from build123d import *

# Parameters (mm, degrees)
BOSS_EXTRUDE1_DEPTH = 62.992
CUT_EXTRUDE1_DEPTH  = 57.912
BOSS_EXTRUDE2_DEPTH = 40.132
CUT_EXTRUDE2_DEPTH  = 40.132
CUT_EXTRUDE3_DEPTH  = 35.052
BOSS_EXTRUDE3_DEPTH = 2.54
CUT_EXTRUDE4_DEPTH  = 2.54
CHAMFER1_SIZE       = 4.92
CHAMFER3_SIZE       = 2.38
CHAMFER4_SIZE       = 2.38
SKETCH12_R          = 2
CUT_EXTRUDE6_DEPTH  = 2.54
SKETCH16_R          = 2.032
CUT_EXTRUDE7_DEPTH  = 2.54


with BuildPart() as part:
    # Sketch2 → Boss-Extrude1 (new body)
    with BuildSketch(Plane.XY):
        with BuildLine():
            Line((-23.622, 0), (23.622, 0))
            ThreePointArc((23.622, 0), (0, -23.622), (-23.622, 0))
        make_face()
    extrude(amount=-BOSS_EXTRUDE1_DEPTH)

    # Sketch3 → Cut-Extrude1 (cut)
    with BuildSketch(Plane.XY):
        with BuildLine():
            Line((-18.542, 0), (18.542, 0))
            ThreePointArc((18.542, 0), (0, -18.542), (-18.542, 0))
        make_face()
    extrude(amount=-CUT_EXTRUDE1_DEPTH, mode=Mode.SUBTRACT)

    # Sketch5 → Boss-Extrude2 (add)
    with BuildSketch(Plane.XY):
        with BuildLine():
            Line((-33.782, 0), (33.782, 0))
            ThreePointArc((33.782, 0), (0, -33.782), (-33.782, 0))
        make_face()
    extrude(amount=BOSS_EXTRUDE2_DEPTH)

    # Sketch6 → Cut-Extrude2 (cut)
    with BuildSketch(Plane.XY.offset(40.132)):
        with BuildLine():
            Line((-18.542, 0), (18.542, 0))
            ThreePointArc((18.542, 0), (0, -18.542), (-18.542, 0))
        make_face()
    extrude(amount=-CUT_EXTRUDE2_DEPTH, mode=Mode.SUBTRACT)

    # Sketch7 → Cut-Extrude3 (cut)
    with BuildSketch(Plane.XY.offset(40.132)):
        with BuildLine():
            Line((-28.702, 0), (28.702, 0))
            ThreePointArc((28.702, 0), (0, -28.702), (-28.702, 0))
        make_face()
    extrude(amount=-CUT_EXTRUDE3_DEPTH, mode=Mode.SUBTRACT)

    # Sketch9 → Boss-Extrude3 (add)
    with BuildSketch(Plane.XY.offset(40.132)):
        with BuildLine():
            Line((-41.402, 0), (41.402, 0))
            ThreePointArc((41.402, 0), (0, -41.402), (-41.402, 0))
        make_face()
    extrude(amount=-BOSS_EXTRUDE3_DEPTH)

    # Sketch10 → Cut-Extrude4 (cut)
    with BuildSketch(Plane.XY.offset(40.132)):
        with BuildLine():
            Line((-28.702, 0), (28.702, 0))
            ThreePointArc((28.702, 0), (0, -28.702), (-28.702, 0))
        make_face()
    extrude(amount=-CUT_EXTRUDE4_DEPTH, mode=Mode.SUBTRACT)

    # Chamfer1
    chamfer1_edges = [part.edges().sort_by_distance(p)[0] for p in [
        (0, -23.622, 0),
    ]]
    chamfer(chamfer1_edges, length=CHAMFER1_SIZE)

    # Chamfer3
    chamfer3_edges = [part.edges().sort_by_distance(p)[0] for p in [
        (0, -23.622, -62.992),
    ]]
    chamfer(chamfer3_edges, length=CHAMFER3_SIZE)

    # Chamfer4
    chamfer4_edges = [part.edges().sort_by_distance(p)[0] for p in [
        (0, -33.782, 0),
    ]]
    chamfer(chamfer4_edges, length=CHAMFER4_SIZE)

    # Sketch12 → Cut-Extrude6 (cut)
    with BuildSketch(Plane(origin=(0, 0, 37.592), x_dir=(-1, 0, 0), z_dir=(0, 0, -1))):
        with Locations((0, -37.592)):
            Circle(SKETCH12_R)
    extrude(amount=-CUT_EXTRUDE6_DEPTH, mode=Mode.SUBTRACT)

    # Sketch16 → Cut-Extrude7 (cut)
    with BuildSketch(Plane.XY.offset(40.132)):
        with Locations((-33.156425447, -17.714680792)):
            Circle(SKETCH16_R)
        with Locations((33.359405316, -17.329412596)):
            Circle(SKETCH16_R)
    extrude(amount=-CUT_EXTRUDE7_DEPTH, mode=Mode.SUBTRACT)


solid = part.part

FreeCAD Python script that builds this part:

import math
import FreeCAD as App
import Part
import Sketcher
from FreeCAD import Vector
Q = App.Units.Quantity


def edges_at(feature, points):
    """Names of the edges that pass closest to the given points."""
    edges = feature.Shape.Edges
    near = lambda p: min(range(len(edges)), key=lambda i: edges[i].distToShape(Part.Vertex(*p))[0])
    return sorted({f"Edge{near(p) + 1}" for p in points})

doc = App.newDocument("Part")
params = doc.addObject("Spreadsheet::Sheet", "Params")
for row, (alias, value) in enumerate([
    ("sketch1_radius", "0.93 in"),
    ("pad1_length", "2.48 in"),
    ("sketch2_radius", "0.73 in"),
    ("pocket1_length", "2.28 in"),
    ("sketch3_radius", "1.33 in"),
    ("pad2_length", "1.58 in"),
    ("sketch4_radius", "0.73 in"),
    ("pocket2_length", "1.58 in"),
    ("sketch5_radius", "1.13 in"),
    ("pocket3_length", "1.38 in"),
    ("sketch6_radius", "1.63 in"),
    ("pad3_length", "0.1 in"),
    ("sketch7_radius", "1.13 in"),
    ("pocket4_length", "0.1 in"),
    ("chamfer_size", "4.92 mm"),
    ("chamfer2_size", "2.38 mm"),
    ("chamfer3_size", "2.38 mm"),
    ("pocket5_length", "0.1 in"),
    ("sketch9_diameter", "0.16 in"),
    ("pocket6_length", "0.1 in"),
], start=1):
    params.set(f"A{row}", alias)
    params.set(f"B{row}", "=" + value)
    params.setAlias(f"B{row}", alias)

body = doc.addObject("PartDesign::Body", "Body")

# Sketch on XY plane
sketch1 = body.newObject("Sketcher::SketchObject", "Sketch")
sketch1.AttachmentSupport = (doc.getObject("XY_Plane"), [""])
sketch1.MapMode = "FlatFace"
sketch1.addGeometry([
    Part.LineSegment(Vector(24, 0, 0), Vector(-24, 0, 0)),
    Part.ArcOfCircle(Part.Circle(Vector(0, 0, 0), Vector(0, 0, 1), 24), math.radians(180), math.radians(360)),
], False)
sketch1.addConstraint([
    Sketcher.Constraint("Coincident", 0, 1, 1, 2),
    Sketcher.Constraint("Coincident", 1, 1, 0, 2),
    Sketcher.Constraint("Horizontal", 0),
    Sketcher.Constraint("Coincident", 1, 3, -1, 1),
    Sketcher.Constraint("PointOnObject", 0, 1, -1),
    Sketcher.Constraint("Radius", 1, Q("0.93 in")),
])
sketch1.setExpression("Constraints[5]", "Params.sketch1_radius")
pad1 = body.newObject("PartDesign::Pad", "Pad")
pad1.Profile = sketch1
pad1.setExpression("Length", "Params.pad1_length")
pad1.Reversed = True

# Sketch on XY plane
sketch2 = body.newObject("Sketcher::SketchObject", "Sketch001")
sketch2.AttachmentSupport = (doc.getObject("XY_Plane"), [""])
sketch2.MapMode = "FlatFace"
sketch2.addGeometry([
    Part.LineSegment(Vector(19, 0, 0), Vector(-19, 0, 0)),
    Part.ArcOfCircle(Part.Circle(Vector(0, 0, 0), Vector(0, 0, 1), 19), math.radians(180), math.radians(360)),
], False)
sketch2.addConstraint([
    Sketcher.Constraint("Coincident", 0, 1, 1, 2),
    Sketcher.Constraint("Coincident", 1, 1, 0, 2),
    Sketcher.Constraint("Horizontal", 0),
    Sketcher.Constraint("Coincident", 1, 3, -1, 1),
    Sketcher.Constraint("PointOnObject", 0, 1, -1),
    Sketcher.Constraint("Radius", 1, Q("0.73 in")),
])
sketch2.setExpression("Constraints[5]", "Params.sketch2_radius")
pocket1 = body.newObject("PartDesign::Pocket", "Pocket")
pocket1.Profile = sketch2
pocket1.setExpression("Length", "Params.pocket1_length")

# Sketch on XY plane
sketch3 = body.newObject("Sketcher::SketchObject", "Sketch002")
sketch3.AttachmentSupport = (doc.getObject("XY_Plane"), [""])
sketch3.MapMode = "FlatFace"
sketch3.addGeometry([
    Part.LineSegment(Vector(34, 0, 0), Vector(-34, 0, 0)),
    Part.ArcOfCircle(Part.Circle(Vector(0, 0, 0), Vector(0, 0, 1), 34), math.radians(180), math.radians(360)),
], False)
sketch3.addConstraint([
    Sketcher.Constraint("Coincident", 0, 1, 1, 2),
    Sketcher.Constraint("Coincident", 1, 1, 0, 2),
    Sketcher.Constraint("Horizontal", 0),
    Sketcher.Constraint("Coincident", 1, 3, -1, 1),
    Sketcher.Constraint("PointOnObject", 0, 1, -1),
    Sketcher.Constraint("Radius", 1, Q("1.33 in")),
])
sketch3.setExpression("Constraints[5]", "Params.sketch3_radius")
pad2 = body.newObject("PartDesign::Pad", "Pad001")
pad2.Profile = sketch3
pad2.setExpression("Length", "Params.pad2_length")

# Sketch on XY plane
sketch4 = body.newObject("Sketcher::SketchObject", "Sketch003")
sketch4.AttachmentSupport = (doc.getObject("XY_Plane"), [""])
sketch4.MapMode = "FlatFace"
sketch4.AttachmentOffset = App.Placement(Vector(0, 0, 1.58 * 25.4), App.Rotation())
sketch4.addGeometry([
    Part.LineSegment(Vector(19, 0, 0), Vector(-19, 0, 0)),
    Part.ArcOfCircle(Part.Circle(Vector(0, 0, 0), Vector(0, 0, 1), 19), math.radians(180), math.radians(360)),
], False)
sketch4.addConstraint([
    Sketcher.Constraint("Coincident", 0, 1, 1, 2),
    Sketcher.Constraint("Coincident", 1, 1, 0, 2),
    Sketcher.Constraint("Horizontal", 0),
    Sketcher.Constraint("Coincident", 1, 3, -1, 1),
    Sketcher.Constraint("PointOnObject", 0, 1, -1),
    Sketcher.Constraint("Radius", 1, Q("0.73 in")),
])
sketch4.setExpression("Constraints[5]", "Params.sketch4_radius")
pocket2 = body.newObject("PartDesign::Pocket", "Pocket001")
pocket2.Profile = sketch4
pocket2.setExpression("Length", "Params.pocket2_length")

# Sketch on XY plane
sketch5 = body.newObject("Sketcher::SketchObject", "Sketch004")
sketch5.AttachmentSupport = (doc.getObject("XY_Plane"), [""])
sketch5.MapMode = "FlatFace"
sketch5.AttachmentOffset = App.Placement(Vector(0, 0, 1.58 * 25.4), App.Rotation())
sketch5.addGeometry([
    Part.LineSegment(Vector(29, 0, 0), Vector(-29, 0, 0)),
    Part.ArcOfCircle(Part.Circle(Vector(0, 0, 0), Vector(0, 0, 1), 29), math.radians(180), math.radians(360)),
], False)
sketch5.addConstraint([
    Sketcher.Constraint("Coincident", 0, 1, 1, 2),
    Sketcher.Constraint("Coincident", 1, 1, 0, 2),
    Sketcher.Constraint("Horizontal", 0),
    Sketcher.Constraint("Coincident", 1, 3, -1, 1),
    Sketcher.Constraint("PointOnObject", 0, 1, -1),
    Sketcher.Constraint("Radius", 1, Q("1.13 in")),
])
sketch5.setExpression("Constraints[5]", "Params.sketch5_radius")
pocket3 = body.newObject("PartDesign::Pocket", "Pocket002")
pocket3.Profile = sketch5
pocket3.setExpression("Length", "Params.pocket3_length")

# Sketch on XY plane
sketch6 = body.newObject("Sketcher::SketchObject", "Sketch005")
sketch6.AttachmentSupport = (doc.getObject("XY_Plane"), [""])
sketch6.MapMode = "FlatFace"
sketch6.AttachmentOffset = App.Placement(Vector(0, 0, 1.58 * 25.4), App.Rotation())
sketch6.addGeometry([
    Part.LineSegment(Vector(41, 0, 0), Vector(-41, 0, 0)),
    Part.ArcOfCircle(Part.Circle(Vector(0, 0, 0), Vector(0, 0, 1), 41), math.radians(180), math.radians(360)),
], False)
sketch6.addConstraint([
    Sketcher.Constraint("Coincident", 0, 1, 1, 2),
    Sketcher.Constraint("Coincident", 1, 1, 0, 2),
    Sketcher.Constraint("Horizontal", 0),
    Sketcher.Constraint("Coincident", 1, 3, -1, 1),
    Sketcher.Constraint("PointOnObject", 0, 1, -1),
    Sketcher.Constraint("Radius", 1, Q("1.63 in")),
])
sketch6.setExpression("Constraints[5]", "Params.sketch6_radius")
pad3 = body.newObject("PartDesign::Pad", "Pad002")
pad3.Profile = sketch6
pad3.setExpression("Length", "Params.pad3_length")
pad3.Reversed = True

# Sketch on XY plane
sketch7 = body.newObject("Sketcher::SketchObject", "Sketch006")
sketch7.AttachmentSupport = (doc.getObject("XY_Plane"), [""])
sketch7.MapMode = "FlatFace"
sketch7.AttachmentOffset = App.Placement(Vector(0, 0, 1.58 * 25.4), App.Rotation())
sketch7.addGeometry([
    Part.LineSegment(Vector(29, 0, 0), Vector(-29, 0, 0)),
    Part.ArcOfCircle(Part.Circle(Vector(0, 0, 0), Vector(0, 0, 1), 29), math.radians(180), math.radians(360)),
], False)
sketch7.addConstraint([
    Sketcher.Constraint("Coincident", 0, 1, 1, 2),
    Sketcher.Constraint("Coincident", 1, 1, 0, 2),
    Sketcher.Constraint("Horizontal", 0),
    Sketcher.Constraint("Coincident", 1, 3, -1, 1),
    Sketcher.Constraint("PointOnObject", 0, 1, -1),
    Sketcher.Constraint("Radius", 1, Q("1.13 in")),
])
sketch7.setExpression("Constraints[5]", "Params.sketch7_radius")
pocket4 = body.newObject("PartDesign::Pocket", "Pocket003")
pocket4.Profile = sketch7
pocket4.setExpression("Length", "Params.pocket4_length")
doc.recompute()

chamfer = body.newObject("PartDesign::Chamfer", "Chamfer")
chamfer.Base = (pocket4, edges_at(pocket4, [(0, -23.622, 0)]))
chamfer.setExpression("Size", "Params.chamfer_size")
doc.recompute()

chamfer2 = body.newObject("PartDesign::Chamfer", "Chamfer001")
chamfer2.Base = (chamfer, edges_at(chamfer, [(0, -23.622, -62.992)]))
chamfer2.setExpression("Size", "Params.chamfer2_size")
doc.recompute()

chamfer3 = body.newObject("PartDesign::Chamfer", "Chamfer002")
chamfer3.Base = (chamfer2, edges_at(chamfer2, [(0, -33.782, 0)]))
chamfer3.setExpression("Size", "Params.chamfer3_size")

# Sketch on XY plane
sketch8 = body.newObject("Sketcher::SketchObject", "Sketch007")
sketch8.AttachmentSupport = (doc.getObject("XY_Plane"), [""])
sketch8.MapMode = "FlatFace"
sketch8.AttachmentOffset = App.Placement(Vector(0, 0, 1.48 * 25.4), App.Rotation())
sketch8.addGeometry(Part.Circle(Vector(0, -37.6, 0), Vector(0, 0, 1), 2), False)
sketch8.addConstraint([
    Sketcher.Constraint("PointOnObject", 0, 3, -2),
    Sketcher.Constraint("Diameter", 0, 4.0),
    Sketcher.Constraint("DistanceY", 0, 3, -1, 1, Q("1.48 in")),
])
pocket5 = body.newObject("PartDesign::Pocket", "Pocket004")
pocket5.Profile = sketch8
pocket5.setExpression("Length", "Params.pocket5_length")
pocket5.Reversed = True

# Sketch on XY plane
sketch9 = body.newObject("Sketcher::SketchObject", "Sketch008")
sketch9.AttachmentSupport = (doc.getObject("XY_Plane"), [""])
sketch9.MapMode = "FlatFace"
sketch9.AttachmentOffset = App.Placement(Vector(0, 0, 1.58 * 25.4), App.Rotation())
sketch9.addGeometry([
    Part.Circle(Vector(-33.2, -17.7, 0), Vector(0, 0, 1), 2),
    Part.Circle(Vector(33.4, -17.3, 0), Vector(0, 0, 1), 2),
], False)
sketch9.addConstraint([
    Sketcher.Constraint("Equal", 0, 1),
    Sketcher.Constraint("Diameter", 0, Q("0.16 in")),
    Sketcher.Constraint("DistanceY", 0, 3, -1, 1, 17.714681),
    Sketcher.Constraint("DistanceX", 0, 3, 1, 3, 66.515831),
    Sketcher.Constraint("DistanceY", 0, 3, 1, 3, 0.385268),
    Sketcher.Constraint("DistanceX", 0, 3, -1, 1, 33.156425),
])
sketch9.setExpression("Constraints[1]", "Params.sketch9_diameter")
pocket6 = body.newObject("PartDesign::Pocket", "Pocket005")
pocket6.Profile = sketch9
pocket6.setExpression("Length", "Params.pocket6_length")

doc.recompute()
